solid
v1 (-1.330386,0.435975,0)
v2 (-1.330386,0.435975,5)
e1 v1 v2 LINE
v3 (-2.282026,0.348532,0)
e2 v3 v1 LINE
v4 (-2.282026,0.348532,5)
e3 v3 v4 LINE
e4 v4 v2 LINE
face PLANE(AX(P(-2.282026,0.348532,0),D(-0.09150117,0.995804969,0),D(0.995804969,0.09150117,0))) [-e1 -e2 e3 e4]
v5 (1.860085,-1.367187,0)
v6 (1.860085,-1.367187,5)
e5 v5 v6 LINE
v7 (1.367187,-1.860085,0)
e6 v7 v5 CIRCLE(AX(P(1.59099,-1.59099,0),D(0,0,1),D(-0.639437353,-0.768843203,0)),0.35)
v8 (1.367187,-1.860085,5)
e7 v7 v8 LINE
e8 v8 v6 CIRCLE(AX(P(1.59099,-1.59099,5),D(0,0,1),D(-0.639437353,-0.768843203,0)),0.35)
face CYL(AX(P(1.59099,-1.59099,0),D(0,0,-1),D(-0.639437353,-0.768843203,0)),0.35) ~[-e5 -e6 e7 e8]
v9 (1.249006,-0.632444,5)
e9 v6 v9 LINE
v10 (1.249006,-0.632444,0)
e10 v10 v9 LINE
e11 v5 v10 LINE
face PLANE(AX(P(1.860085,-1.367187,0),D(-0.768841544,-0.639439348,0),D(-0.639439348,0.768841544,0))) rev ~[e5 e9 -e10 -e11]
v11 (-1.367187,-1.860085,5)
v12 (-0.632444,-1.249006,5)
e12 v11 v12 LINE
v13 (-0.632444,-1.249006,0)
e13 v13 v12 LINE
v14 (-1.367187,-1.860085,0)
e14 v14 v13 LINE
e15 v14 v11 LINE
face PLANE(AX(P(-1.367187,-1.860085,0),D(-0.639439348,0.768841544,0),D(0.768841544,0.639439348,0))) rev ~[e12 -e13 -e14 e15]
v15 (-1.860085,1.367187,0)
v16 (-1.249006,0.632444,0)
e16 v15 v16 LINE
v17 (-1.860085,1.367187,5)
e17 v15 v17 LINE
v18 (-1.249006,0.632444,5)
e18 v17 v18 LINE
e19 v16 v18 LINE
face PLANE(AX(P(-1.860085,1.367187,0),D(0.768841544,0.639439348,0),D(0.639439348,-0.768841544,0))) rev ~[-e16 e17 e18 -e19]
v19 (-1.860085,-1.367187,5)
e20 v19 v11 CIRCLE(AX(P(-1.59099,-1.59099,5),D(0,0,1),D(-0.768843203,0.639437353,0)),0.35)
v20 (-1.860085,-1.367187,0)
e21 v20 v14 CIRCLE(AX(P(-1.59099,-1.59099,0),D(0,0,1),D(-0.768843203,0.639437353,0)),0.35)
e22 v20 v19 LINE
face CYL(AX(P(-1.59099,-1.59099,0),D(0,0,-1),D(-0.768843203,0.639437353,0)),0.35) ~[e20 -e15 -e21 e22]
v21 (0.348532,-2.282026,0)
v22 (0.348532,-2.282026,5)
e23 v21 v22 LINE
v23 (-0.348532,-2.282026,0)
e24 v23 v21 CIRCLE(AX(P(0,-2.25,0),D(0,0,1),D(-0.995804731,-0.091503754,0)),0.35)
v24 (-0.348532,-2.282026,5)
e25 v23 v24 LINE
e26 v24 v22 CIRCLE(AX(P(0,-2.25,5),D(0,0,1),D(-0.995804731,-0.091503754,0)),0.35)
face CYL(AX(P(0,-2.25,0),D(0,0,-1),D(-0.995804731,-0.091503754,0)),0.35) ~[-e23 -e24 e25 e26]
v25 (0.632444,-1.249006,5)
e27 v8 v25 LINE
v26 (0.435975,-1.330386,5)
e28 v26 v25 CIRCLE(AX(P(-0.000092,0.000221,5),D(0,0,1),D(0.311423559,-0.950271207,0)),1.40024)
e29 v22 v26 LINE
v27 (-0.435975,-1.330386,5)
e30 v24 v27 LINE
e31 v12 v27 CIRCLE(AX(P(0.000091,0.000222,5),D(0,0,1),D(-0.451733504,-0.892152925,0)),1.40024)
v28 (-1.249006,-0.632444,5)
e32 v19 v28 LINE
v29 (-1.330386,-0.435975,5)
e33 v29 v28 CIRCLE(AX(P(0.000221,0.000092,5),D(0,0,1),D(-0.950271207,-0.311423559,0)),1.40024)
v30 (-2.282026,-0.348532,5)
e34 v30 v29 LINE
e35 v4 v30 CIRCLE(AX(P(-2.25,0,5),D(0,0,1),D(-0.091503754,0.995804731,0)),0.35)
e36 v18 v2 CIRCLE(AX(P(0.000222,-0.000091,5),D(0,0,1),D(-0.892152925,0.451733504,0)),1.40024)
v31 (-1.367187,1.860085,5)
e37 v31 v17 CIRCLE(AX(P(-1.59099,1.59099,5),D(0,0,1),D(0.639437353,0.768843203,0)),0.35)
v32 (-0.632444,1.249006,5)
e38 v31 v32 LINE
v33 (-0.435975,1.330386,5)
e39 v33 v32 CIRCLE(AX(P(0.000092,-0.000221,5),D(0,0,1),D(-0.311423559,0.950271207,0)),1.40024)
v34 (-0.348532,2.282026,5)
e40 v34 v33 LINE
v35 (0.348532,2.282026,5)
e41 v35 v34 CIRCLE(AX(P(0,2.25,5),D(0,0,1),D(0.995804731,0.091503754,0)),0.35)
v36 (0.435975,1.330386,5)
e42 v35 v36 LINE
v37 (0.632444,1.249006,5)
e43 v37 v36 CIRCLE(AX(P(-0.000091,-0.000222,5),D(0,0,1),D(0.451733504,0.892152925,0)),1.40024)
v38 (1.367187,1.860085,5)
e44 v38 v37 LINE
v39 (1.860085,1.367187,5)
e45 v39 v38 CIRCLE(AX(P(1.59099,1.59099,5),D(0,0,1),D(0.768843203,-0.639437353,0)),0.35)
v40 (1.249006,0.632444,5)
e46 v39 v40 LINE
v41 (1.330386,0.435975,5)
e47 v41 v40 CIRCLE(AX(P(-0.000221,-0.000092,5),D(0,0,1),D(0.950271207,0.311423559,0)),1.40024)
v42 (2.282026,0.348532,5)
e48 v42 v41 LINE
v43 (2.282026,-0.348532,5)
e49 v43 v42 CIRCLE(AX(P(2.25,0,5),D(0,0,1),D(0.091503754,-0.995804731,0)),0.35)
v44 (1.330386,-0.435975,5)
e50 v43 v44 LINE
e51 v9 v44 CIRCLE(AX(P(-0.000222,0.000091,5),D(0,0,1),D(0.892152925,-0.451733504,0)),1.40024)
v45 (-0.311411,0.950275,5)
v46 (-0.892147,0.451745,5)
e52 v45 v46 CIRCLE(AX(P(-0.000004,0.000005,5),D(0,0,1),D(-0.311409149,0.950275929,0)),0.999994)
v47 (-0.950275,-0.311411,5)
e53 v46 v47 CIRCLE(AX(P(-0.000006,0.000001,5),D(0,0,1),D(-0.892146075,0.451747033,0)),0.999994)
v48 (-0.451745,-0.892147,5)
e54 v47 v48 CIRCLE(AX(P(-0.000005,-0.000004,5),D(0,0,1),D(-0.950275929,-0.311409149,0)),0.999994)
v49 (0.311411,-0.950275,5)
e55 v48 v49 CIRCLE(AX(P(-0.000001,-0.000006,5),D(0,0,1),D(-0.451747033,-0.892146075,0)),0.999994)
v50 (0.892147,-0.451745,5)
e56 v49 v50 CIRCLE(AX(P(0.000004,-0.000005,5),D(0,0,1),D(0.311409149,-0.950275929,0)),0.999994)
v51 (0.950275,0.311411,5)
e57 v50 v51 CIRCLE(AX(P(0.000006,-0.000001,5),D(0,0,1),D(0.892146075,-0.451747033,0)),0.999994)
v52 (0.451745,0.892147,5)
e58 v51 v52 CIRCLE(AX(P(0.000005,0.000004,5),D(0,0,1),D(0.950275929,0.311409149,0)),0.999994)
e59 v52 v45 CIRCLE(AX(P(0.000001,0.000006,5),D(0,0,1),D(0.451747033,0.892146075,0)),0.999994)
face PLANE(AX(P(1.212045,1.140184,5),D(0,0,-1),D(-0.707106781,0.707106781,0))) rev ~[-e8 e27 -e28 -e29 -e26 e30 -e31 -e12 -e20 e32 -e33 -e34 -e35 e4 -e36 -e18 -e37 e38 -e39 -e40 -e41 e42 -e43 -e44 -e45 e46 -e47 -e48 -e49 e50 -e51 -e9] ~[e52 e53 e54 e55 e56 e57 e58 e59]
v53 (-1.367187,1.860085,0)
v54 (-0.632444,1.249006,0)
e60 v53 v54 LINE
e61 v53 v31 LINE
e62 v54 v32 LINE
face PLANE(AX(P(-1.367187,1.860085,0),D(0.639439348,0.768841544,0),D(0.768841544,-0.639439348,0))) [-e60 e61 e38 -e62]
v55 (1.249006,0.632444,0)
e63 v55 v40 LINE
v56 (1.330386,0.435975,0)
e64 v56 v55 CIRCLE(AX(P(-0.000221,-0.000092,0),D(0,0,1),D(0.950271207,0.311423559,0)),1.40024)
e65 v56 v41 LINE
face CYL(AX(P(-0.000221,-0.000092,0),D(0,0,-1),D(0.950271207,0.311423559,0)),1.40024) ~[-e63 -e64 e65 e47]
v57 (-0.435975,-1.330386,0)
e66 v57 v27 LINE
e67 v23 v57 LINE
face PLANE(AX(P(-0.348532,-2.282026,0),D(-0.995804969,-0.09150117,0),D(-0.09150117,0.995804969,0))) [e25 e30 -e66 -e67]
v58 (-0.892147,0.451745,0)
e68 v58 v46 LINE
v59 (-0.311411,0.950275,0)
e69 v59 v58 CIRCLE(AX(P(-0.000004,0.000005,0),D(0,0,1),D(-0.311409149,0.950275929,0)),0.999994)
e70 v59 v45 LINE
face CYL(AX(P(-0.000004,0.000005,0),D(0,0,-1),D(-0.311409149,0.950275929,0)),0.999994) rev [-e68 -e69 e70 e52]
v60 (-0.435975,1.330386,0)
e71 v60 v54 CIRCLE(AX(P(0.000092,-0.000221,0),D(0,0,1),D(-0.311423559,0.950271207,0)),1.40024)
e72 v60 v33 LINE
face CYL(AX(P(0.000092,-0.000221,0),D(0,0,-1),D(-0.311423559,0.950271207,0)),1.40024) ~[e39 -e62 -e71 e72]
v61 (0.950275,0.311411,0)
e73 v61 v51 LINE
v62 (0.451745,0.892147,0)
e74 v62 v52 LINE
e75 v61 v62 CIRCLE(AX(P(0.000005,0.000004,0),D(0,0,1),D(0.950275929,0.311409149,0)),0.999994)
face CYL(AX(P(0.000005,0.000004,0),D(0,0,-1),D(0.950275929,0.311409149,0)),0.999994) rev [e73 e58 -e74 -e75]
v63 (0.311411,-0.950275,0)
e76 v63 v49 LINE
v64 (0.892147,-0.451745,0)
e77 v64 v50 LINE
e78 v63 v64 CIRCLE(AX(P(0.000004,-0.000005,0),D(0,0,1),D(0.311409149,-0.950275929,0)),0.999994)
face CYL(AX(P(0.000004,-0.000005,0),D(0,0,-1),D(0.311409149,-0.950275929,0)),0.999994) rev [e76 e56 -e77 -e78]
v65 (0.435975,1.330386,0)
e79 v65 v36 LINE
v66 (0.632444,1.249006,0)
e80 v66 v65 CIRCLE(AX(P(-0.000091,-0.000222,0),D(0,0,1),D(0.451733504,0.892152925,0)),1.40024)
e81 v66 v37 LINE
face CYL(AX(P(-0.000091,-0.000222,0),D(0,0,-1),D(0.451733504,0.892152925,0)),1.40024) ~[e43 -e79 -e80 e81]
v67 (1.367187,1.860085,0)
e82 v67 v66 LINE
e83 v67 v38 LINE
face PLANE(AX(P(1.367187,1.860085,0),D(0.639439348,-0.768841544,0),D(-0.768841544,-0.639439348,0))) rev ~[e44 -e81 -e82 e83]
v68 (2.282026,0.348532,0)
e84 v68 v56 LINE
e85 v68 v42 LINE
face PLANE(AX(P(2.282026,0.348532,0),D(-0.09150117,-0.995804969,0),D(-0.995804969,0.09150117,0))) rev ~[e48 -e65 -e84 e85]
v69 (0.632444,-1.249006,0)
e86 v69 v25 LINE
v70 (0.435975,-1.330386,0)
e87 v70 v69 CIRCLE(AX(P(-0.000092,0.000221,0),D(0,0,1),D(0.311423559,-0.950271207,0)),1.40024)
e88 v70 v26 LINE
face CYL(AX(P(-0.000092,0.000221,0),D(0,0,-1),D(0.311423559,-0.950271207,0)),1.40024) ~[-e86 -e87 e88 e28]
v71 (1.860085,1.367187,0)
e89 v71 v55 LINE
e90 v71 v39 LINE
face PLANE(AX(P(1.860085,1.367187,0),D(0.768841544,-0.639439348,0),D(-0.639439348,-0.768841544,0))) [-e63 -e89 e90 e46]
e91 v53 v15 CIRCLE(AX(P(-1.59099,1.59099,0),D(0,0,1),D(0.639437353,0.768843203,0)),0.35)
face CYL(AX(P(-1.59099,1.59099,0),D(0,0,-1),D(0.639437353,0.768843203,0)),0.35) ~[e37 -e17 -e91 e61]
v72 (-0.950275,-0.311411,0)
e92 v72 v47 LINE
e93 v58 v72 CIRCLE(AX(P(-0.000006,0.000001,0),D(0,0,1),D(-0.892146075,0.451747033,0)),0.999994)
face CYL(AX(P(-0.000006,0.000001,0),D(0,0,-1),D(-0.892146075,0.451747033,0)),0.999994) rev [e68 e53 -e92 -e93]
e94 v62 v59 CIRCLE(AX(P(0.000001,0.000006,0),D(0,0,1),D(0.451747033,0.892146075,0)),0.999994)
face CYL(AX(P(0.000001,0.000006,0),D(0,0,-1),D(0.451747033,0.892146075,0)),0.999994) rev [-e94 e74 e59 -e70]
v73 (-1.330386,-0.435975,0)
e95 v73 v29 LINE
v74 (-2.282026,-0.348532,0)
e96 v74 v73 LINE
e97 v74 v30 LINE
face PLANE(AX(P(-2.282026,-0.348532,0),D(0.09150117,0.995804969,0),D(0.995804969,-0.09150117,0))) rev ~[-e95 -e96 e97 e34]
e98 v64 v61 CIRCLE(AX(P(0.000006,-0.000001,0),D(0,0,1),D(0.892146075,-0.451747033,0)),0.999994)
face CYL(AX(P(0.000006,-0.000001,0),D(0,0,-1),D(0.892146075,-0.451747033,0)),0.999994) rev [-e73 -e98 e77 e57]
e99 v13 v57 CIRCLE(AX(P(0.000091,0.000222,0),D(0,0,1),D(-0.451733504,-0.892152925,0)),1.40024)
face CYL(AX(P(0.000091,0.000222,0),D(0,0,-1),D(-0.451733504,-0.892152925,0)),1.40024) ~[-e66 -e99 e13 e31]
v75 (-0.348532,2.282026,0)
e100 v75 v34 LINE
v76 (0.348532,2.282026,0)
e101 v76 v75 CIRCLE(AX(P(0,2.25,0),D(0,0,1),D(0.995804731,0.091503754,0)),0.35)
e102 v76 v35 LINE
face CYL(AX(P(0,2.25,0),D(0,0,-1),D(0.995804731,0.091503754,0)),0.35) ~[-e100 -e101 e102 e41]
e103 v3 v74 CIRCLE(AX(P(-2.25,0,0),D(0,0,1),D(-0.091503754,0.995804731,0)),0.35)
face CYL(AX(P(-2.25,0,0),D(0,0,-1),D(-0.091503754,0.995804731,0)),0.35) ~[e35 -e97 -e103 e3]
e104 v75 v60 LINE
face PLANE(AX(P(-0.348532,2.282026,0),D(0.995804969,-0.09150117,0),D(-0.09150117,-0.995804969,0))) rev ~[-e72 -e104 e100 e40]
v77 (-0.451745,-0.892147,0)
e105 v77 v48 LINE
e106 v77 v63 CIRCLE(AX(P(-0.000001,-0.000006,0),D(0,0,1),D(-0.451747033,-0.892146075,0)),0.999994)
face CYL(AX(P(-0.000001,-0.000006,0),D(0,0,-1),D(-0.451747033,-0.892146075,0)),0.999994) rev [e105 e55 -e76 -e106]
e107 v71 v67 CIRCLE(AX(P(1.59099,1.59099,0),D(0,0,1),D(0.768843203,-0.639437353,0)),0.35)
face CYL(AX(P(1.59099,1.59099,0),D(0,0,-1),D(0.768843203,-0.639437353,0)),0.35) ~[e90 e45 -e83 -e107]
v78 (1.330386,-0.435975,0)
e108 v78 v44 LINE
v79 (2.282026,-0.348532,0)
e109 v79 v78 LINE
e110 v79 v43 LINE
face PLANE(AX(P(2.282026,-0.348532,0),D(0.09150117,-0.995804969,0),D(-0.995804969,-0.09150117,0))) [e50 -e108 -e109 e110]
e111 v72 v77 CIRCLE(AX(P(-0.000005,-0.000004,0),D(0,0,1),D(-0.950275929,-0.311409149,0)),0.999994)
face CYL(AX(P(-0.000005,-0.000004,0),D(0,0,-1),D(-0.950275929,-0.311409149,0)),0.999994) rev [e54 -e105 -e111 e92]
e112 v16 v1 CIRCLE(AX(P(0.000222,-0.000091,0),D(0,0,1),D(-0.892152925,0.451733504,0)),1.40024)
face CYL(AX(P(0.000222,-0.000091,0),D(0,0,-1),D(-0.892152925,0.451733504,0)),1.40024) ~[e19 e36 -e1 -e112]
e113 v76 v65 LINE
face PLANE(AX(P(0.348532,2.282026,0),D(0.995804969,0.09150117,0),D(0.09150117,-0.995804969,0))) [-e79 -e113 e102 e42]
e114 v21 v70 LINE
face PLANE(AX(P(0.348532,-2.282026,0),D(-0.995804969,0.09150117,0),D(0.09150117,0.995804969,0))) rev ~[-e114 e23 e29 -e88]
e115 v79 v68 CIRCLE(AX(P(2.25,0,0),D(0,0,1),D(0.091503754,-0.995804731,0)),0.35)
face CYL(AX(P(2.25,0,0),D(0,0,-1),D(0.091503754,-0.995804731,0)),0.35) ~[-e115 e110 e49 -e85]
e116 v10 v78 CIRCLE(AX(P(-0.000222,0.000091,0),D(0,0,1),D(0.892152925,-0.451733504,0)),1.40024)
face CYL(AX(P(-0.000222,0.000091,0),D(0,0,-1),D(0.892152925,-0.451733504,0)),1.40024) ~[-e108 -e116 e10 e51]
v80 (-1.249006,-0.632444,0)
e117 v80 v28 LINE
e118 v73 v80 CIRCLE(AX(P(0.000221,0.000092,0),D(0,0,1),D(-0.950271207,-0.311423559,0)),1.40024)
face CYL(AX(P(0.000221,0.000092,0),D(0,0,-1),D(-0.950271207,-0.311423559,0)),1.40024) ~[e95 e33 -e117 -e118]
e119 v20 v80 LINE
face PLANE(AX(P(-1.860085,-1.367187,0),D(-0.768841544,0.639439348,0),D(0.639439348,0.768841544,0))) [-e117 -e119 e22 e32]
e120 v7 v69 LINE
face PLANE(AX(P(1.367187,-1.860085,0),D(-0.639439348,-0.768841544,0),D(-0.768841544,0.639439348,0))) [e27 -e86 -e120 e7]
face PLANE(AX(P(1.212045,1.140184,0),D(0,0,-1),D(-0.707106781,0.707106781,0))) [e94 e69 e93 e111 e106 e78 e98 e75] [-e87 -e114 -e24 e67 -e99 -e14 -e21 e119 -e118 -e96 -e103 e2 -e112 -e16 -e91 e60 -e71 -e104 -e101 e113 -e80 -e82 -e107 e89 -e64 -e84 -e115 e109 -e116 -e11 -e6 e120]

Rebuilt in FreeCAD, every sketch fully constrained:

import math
import FreeCAD as App
import Part
import Sketcher

doc = App.newDocument("Part")
params = doc.addObject("Spreadsheet::Sheet", "Params")
for row, (alias, value) in enumerate([
    ("sketch1_radius", "0.35 mm"),
    ("sketch1_length", "0.400001 mm"),
    ("pad1_length", "5 mm"),
], start=1):
    params.set(f"A{row}", alias)
    params.set(f"B{row}", "=" + value)
    params.setAlias(f"B{row}", alias)

body = doc.addObject("PartDesign::Body", "Body")

# Sketch on XY plane
sketch1 = body.newObject("Sketcher::SketchObject", "Sketch")
sketch1.AttachmentSupport = (doc.getObject("XY_Plane"), [""])
sketch1.MapMode = "FlatFace"
sketch1.addGeometry([
    Part.ArcOfCircle(Part.Circle(App.Vector(0.000001, 0.000006, 0), App.Vector(0, 0, 1), 0.999994), math.radians(63.144173), math.radians(108.144448)),  # 0
    Part.LineSegment(App.Vector(0.451745, 0.892147, 0), App.Vector(0.632444, 1.249006, 0)),  # 1
    Part.ArcOfCircle(Part.Circle(App.Vector(-0.000091, -0.000222, 0), App.Vector(0, 0, 1), 1.40024), math.radians(63.145042), math.radians(71.85502)),  # 2
    Part.LineSegment(App.Vector(0.435975, 1.330386, 0), App.Vector(0.348532, 2.282026, 0)),  # 3
    Part.ArcOfCircle(Part.Circle(App.Vector(0, 2.25, 0), App.Vector(0, 0, 1), 0.35), math.radians(5.250123), math.radians(174.749877)),  # 4
    Part.LineSegment(App.Vector(-0.348532, 2.282026, 0), App.Vector(-0.435975, 1.330386, 0)),  # 5
    Part.LineSegment(App.Vector(-0.435975, 1.330386, 0), App.Vector(-0.311411, 0.950275, 0)),  # 6
], False)
sketch1.addConstraint([
    Sketcher.Constraint("Coincident", 0, 1, 1, 1),
    Sketcher.Constraint("Coincident", 1, 2, 2, 1),
    Sketcher.Constraint("Coincident", 2, 2, 3, 1),
    Sketcher.Constraint("Coincident", 3, 2, 4, 1),
    Sketcher.Constraint("Coincident", 4, 2, 5, 1),
    Sketcher.Constraint("Coincident", 5, 2, 6, 1),
    Sketcher.Constraint("Coincident", 6, 2, 0, 2),
    Sketcher.Constraint("Coincident", 0, 3, -1, 1),
    Sketcher.Constraint("Symmetric", 3, 2, 4, 2, -2),
    Sketcher.Constraint("Symmetric", 2, 2, 5, 2, -2),
    Sketcher.Constraint("Equal", 1, 6),
    Sketcher.Constraint("Radius", 4, 0.35),
    Sketcher.Constraint("Distance", 1, 0.400001),
    Sketcher.Constraint("DistanceY", -1, 1, 4, 3, 2.25),
    Sketcher.Constraint("Radius", 2, 1.40024),
    Sketcher.Constraint("Radius", 0, 0.999994),
    Sketcher.Constraint("DistanceY", 0, 3, 1, 2, 1.249),
    Sketcher.Constraint("DistanceX", 0, 1, 1, 2, 0.180699),
    Sketcher.Constraint("Distance", 3, 0.955649),
    Sketcher.Constraint("DistanceX", 4, 2, -1, 1, 0.348532),
    Sketcher.Constraint("DistanceX", 6, 2, -1, 1, 0.311411),
])
sketch1.setExpression("Constraints[11]", "Params.sketch1_radius")
sketch1.setExpression("Constraints[12]", "Params.sketch1_length")
pad1 = body.newObject("PartDesign::Pad", "Pad")
pad1.Profile = sketch1
pad1.setExpression("Length", "Params.pad1_length")
doc.recompute()

polarpattern = body.newObject("PartDesign::PolarPattern", "PolarPattern")
polarpattern.Originals = [pad1]
polarpattern.Axis = (doc.getObject("Z_Axis"), [""])
polarpattern.Angle = 360
polarpattern.Occurrences = 8
body.Tip = polarpattern

doc.recompute()
